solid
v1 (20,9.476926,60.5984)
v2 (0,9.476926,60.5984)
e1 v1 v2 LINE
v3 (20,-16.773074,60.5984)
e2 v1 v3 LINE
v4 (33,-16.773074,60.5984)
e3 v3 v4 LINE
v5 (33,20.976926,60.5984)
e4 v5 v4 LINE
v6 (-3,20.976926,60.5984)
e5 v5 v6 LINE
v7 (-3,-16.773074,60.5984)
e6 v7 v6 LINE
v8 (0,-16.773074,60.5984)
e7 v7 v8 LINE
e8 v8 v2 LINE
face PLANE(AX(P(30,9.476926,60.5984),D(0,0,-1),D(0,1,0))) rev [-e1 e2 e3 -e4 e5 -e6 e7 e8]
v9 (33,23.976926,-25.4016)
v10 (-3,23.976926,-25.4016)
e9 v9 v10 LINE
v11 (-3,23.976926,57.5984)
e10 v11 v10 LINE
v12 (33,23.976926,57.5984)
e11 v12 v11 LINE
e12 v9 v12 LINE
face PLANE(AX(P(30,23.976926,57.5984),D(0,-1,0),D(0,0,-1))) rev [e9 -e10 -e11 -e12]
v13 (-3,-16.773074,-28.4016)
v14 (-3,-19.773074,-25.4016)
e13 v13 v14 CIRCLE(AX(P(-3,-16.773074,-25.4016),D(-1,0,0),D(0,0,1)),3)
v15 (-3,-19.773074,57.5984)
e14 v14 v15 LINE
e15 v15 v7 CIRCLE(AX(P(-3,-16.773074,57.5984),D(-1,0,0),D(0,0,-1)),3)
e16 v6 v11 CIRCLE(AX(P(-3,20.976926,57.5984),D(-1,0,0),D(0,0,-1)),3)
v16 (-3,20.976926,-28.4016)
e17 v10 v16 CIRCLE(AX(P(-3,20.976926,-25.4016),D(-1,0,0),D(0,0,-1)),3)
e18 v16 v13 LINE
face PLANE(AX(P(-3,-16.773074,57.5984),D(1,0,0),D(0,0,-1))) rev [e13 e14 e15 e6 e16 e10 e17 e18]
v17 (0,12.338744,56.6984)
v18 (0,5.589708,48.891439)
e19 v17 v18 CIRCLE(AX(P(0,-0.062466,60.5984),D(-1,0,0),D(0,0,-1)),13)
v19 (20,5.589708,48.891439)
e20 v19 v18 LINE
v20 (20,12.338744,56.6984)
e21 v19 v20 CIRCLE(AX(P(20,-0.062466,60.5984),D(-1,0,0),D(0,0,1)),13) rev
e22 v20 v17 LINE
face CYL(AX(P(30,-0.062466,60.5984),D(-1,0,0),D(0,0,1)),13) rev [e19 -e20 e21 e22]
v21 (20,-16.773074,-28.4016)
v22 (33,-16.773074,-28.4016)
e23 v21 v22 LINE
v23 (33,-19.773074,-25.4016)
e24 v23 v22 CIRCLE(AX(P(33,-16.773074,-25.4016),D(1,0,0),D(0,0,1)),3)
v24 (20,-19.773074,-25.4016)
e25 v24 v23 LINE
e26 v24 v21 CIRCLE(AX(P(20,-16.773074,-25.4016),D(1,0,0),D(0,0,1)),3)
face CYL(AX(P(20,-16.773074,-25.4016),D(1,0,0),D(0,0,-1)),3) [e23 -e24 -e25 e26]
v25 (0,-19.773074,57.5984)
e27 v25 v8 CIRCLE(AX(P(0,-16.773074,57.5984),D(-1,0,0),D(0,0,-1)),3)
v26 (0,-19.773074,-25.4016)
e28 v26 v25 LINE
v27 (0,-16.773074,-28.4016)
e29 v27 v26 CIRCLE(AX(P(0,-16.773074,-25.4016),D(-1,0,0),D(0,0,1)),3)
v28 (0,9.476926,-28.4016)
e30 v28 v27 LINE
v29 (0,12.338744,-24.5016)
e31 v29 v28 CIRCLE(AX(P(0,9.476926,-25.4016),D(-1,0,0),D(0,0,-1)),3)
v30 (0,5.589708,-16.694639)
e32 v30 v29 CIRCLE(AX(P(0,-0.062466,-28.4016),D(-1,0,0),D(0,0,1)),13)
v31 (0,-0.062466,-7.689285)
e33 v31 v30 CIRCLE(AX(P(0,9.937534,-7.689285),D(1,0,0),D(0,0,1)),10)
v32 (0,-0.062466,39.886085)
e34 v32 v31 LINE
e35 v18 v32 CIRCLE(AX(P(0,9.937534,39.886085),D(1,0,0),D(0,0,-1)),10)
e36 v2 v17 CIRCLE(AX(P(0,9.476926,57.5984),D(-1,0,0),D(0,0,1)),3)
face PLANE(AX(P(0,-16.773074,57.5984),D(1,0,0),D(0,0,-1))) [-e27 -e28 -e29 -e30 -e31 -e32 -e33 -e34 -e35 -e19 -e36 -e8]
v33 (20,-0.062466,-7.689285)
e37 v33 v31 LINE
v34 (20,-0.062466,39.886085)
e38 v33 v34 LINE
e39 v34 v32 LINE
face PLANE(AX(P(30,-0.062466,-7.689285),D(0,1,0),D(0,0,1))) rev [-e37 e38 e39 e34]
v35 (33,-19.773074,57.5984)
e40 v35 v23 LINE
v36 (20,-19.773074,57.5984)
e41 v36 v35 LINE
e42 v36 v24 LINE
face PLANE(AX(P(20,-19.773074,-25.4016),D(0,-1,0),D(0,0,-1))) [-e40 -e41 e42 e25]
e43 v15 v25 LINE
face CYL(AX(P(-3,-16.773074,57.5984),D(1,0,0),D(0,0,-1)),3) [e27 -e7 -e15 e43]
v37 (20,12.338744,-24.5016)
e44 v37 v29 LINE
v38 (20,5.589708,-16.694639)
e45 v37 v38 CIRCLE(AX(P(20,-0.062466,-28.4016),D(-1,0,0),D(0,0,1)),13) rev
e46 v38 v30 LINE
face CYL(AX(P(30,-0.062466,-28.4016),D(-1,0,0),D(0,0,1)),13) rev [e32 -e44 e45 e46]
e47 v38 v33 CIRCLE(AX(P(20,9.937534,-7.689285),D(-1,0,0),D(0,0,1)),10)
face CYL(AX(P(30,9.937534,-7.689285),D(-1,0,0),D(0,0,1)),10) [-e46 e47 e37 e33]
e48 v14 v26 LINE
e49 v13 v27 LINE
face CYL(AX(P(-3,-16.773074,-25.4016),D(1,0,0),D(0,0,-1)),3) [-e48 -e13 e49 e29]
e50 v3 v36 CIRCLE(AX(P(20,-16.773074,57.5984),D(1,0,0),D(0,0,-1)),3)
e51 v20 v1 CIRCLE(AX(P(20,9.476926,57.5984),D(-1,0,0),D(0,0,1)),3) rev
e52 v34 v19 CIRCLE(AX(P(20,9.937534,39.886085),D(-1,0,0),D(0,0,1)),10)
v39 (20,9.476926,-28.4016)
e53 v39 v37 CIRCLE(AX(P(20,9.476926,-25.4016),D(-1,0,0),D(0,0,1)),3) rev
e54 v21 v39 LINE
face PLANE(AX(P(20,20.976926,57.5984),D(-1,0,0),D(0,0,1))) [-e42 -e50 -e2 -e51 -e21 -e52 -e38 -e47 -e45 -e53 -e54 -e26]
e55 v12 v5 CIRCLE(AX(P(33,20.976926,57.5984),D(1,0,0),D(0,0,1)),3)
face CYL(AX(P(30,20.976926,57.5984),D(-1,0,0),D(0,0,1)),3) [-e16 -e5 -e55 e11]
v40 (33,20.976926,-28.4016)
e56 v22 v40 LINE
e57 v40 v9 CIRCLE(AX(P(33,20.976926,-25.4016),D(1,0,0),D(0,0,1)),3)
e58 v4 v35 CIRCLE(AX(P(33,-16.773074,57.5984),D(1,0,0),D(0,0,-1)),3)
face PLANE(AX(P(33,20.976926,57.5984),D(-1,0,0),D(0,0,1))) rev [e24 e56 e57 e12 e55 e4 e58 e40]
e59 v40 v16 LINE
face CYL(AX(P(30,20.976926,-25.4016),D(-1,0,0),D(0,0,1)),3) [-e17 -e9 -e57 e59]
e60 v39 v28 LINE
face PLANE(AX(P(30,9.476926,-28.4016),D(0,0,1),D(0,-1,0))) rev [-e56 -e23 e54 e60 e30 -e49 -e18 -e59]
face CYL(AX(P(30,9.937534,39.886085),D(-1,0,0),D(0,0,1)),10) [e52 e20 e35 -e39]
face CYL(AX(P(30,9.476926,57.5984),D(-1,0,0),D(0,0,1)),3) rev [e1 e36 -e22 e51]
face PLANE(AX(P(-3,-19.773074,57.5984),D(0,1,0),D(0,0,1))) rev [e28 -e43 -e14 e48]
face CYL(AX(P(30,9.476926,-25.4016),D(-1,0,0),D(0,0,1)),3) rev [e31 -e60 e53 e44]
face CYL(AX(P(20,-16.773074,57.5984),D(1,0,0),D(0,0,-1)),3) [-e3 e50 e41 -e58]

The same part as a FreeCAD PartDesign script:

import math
import FreeCAD as App
import Part
import Sketcher

doc = App.newDocument("Part")
body = doc.addObject("PartDesign::Body", "Body")

# Sketch on YZ plane
sketch1 = doc.addObject("Sketcher::SketchObject", "Sketch")
body.addObject(sketch1)
sketch1.AttachmentSupport = (doc.YZ_Plane, [""])
sketch1.MapMode = "FlatFace"
sketch1.addGeometry([
    Part.ArcOfCircle(Part.Circle(App.Vector(9.937534, 39.886085, 0), App.Vector(0, 0, 1), 10), math.radians(115.771462), math.radians(180)),  # 0
    Part.LineSegment(App.Vector(-0.062466, 39.886085, 0), App.Vector(-0.062466, -7.689285, 0)),  # 1
    Part.ArcOfCircle(Part.Circle(App.Vector(9.937534, -7.689285, 0), App.Vector(0, 0, 1), 10), math.radians(-180), math.radians(-115.771462)),  # 2
    Part.ArcOfCircle(Part.Circle(App.Vector(-0.062466, -28.4016, 0), App.Vector(0, 0, 1), 13), math.radians(17.457603), math.radians(64.228538)),  # 3
    Part.ArcOfCircle(Part.Circle(App.Vector(9.476926, -25.4016, 0), App.Vector(0, 0, 1), 3), math.radians(-90), math.radians(17.457603)),  # 4
    Part.LineSegment(App.Vector(9.476926, -28.4016, 0), App.Vector(20.976926, -28.4016, 0)),  # 5
    Part.ArcOfCircle(Part.Circle(App.Vector(20.976926, -25.4016, 0), App.Vector(0, 0, 1), 3), math.radians(-90), math.radians(0)),  # 6
    Part.LineSegment(App.Vector(23.976926, -25.4016, 0), App.Vector(23.976926, 57.5984, 0)),  # 7
    Part.ArcOfCircle(Part.Circle(App.Vector(20.976926, 57.5984, 0), App.Vector(0, 0, 1), 3), math.radians(0), math.radians(90)),  # 8
    Part.LineSegment(App.Vector(20.976926, 60.5984, 0), App.Vector(9.476926, 60.5984, 0)),  # 9
    Part.ArcOfCircle(Part.Circle(App.Vector(9.476926, 57.5984, 0), App.Vector(0, 0, 1), 3), math.radians(-17.457603), math.radians(90)),  # 10
    Part.ArcOfCircle(Part.Circle(App.Vector(-0.062466, 60.5984, 0), App.Vector(0, 0, 1), 13), math.radians(-64.228538), math.radians(-17.457603)),  # 11
], False)
sketch1.addConstraint([
    Sketcher.Constraint("Tangent", 0, 2, 1, 1),
    Sketcher.Constraint("Tangent", 1, 2, 2, 1),
    Sketcher.Constraint("Tangent", 2, 2, 3, 2),
    Sketcher.Constraint("Tangent", 3, 1, 4, 2),
    Sketcher.Constraint("Tangent", 4, 1, 5, 1),
    Sketcher.Constraint("Tangent", 5, 2, 6, 1),
    Sketcher.Constraint("Tangent", 6, 2, 7, 1),
    Sketcher.Constraint("Tangent", 7, 2, 8, 1),
    Sketcher.Constraint("Tangent", 8, 2, 9, 1),
    Sketcher.Constraint("Tangent", 9, 2, 10, 2),
    Sketcher.Constraint("Tangent", 10, 1, 11, 2),
    Sketcher.Constraint("Tangent", 11, 1, 0, 1),
    Sketcher.Constraint("Vertical", 1),
    Sketcher.Constraint("Horizontal", 5),
    Sketcher.Constraint("Vertical", 7),
    Sketcher.Constraint("Horizontal", 9),
    Sketcher.Constraint("Equal", 0, 2),
    Sketcher.Constraint("Equal", 4, 6),
    Sketcher.Constraint("Equal", 6, 8),
    Sketcher.Constraint("Equal", 8, 10),
    Sketcher.Constraint("Equal", 3, 11),
    Sketcher.Constraint("Horizontal", 3, 3, 4, 1),
    Sketcher.Constraint("Horizontal", 11, 3, 8, 2),
    Sketcher.Constraint("Vertical", 4, 3, 10, 3),
    Sketcher.Constraint("Vertical", 11, 3, 0, 2),
    Sketcher.Constraint("Radius", 0, 10.0),
    Sketcher.Constraint("Radius", 3, 13.0),
    Sketcher.Constraint("Radius", 4, 3.0),
    Sketcher.Constraint("DistanceY", 7, 1, 7, 2, 83.0),
    Sketcher.Constraint("DistanceX", 5, 1, 5, 2, 11.5),
    Sketcher.Constraint("DistanceY", 3, 3, -1, 1, 28.4016),
    Sketcher.Constraint("DistanceX", -1, 1, 0, 3, 9.937534),
])
pad1 = doc.addObject("PartDesign::Pad", "Pad")
body.addObject(pad1)
pad1.Profile = sketch1
pad1.Length = 30

# Sketch on YZ plane
sketch2 = doc.addObject("Sketcher::SketchObject", "Sketch001")
body.addObject(sketch2)
sketch2.AttachmentSupport = (doc.YZ_Plane, [""])
sketch2.MapMode = "FlatFace"
sketch2.addGeometry([
    Part.ArcOfCircle(Part.Circle(App.Vector(20.976926, 57.5984, 0), App.Vector(0, 0, 1), 3), math.radians(0), math.radians(90)),  # 0
    Part.LineSegment(App.Vector(23.976926, 57.5984, 0), App.Vector(23.976926, -25.4016, 0)),  # 1
    Part.ArcOfCircle(Part.Circle(App.Vector(20.976926, -25.4016, 0), App.Vector(0, 0, 1), 3), math.radians(-90), math.radians(0)),  # 2
    Part.LineSegment(App.Vector(20.976926, -28.4016, 0), App.Vector(-16.773074, -28.4016, 0)),  # 3
    Part.ArcOfCircle(Part.Circle(App.Vector(-16.773074, -25.4016, 0), App.Vector(0, 0, 1), 3), math.radians(180), math.radians(270)),  # 4
    Part.LineSegment(App.Vector(-19.773074, -25.4016, 0), App.Vector(-19.773074, 57.5984, 0)),  # 5
    Part.ArcOfCircle(Part.Circle(App.Vector(-16.773074, 57.5984, 0), App.Vector(0, 0, 1), 3), math.radians(90), math.radians(180)),  # 6
    Part.LineSegment(App.Vector(-16.773074, 60.5984, 0), App.Vector(20.976926, 60.5984, 0)),  # 7
], False)
sketch2.addConstraint([
    Sketcher.Constraint("Tangent", 0, 1, 1, 1),
    Sketcher.Constraint("Tangent", 1, 2, 2, 2),
    Sketcher.Constraint("Tangent", 2, 1, 3, 1),
    Sketcher.Constraint("Tangent", 3, 2, 4, 2),
    Sketcher.Constraint("Tangent", 4, 1, 5, 1),
    Sketcher.Constraint("Tangent", 5, 2, 6, 2),
    Sketcher.Constraint("Tangent", 6, 1, 7, 1),
    Sketcher.Constraint("Tangent", 7, 2, 0, 2),
    Sketcher.Constraint("Vertical", 1),
    Sketcher.Constraint("Horizontal", 3),
    Sketcher.Constraint("Vertical", 5),
    Sketcher.Constraint("Horizontal", 7),
    Sketcher.Constraint("Equal", 0, 2),
    Sketcher.Constraint("Equal", 2, 4),
    Sketcher.Constraint("Equal", 4, 6),
    Sketcher.Constraint("Radius", 0, 3.0),
    Sketcher.Constraint("DistanceY", 1, 2, 1, 1, 83.0),
    Sketcher.Constraint("DistanceX", 3, 2, 3, 1, 37.75),
    Sketcher.Constraint("DistanceY", -1, 1, 0, 3, 57.5984),
    Sketcher.Constraint("DistanceX", -1, 1, 0, 3, 20.976926),
])
pad2 = doc.addObject("PartDesign::Pad", "Pad001")
body.addObject(pad2)
pad2.Profile = sketch2
pad2.Length = 3
pad2.Reversed = True

# Sketch on YZ plane
sketch3 = doc.addObject("Sketcher::SketchObject", "Sketch002")
body.addObject(sketch3)
sketch3.AttachmentSupport = (doc.YZ_Plane, [""])
sketch3.MapMode = "FlatFace"
sketch3.AttachmentOffset = App.Placement(App.Vector(0, 0, 30), App.Rotation())
sketch3.addGeometry([
    Part.ArcOfCircle(Part.Circle(App.Vector(20.976926, -25.4016, 0), App.Vector(0, 0, 1), 3), math.radians(-90), math.radians(0)),  # 0
    Part.LineSegment(App.Vector(23.976926, -25.4016, 0), App.Vector(23.976926, 57.5984, 0)),  # 1
    Part.ArcOfCircle(Part.Circle(App.Vector(20.976926, 57.5984, 0), App.Vector(0, 0, 1), 3), math.radians(0), math.radians(90)),  # 2
    Part.LineSegment(App.Vector(20.976926, 60.5984, 0), App.Vector(-16.773074, 60.5984, 0)),  # 3
    Part.ArcOfCircle(Part.Circle(App.Vector(-16.773074, 57.5984, 0), App.Vector(0, 0, 1), 3), math.radians(90), math.radians(180)),  # 4
    Part.LineSegment(App.Vector(-19.773074, 57.5984, 0), App.Vector(-19.773074, -25.4016, 0)),  # 5
    Part.ArcOfCircle(Part.Circle(App.Vector(-16.773074, -25.4016, 0), App.Vector(0, 0, 1), 3), math.radians(180), math.radians(270)),  # 6
    Part.LineSegment(App.Vector(-16.773074, -28.4016, 0), App.Vector(20.976926, -28.4016, 0)),  # 7
], False)
sketch3.addConstraint([
    Sketcher.Constraint("Tangent", 0, 2, 1, 1),
    Sketcher.Constraint("Tangent", 1, 2, 2, 1),
    Sketcher.Constraint("Tangent", 2, 2, 3, 1),
    Sketcher.Constraint("Tangent", 3, 2, 4, 1),
    Sketcher.Constraint("Tangent", 4, 2, 5, 1),
    Sketcher.Constraint("Tangent", 5, 2, 6, 1),
    Sketcher.Constraint("Tangent", 6, 2, 7, 1),
    Sketcher.Constraint("Tangent", 7, 2, 0, 1),
    Sketcher.Constraint("Vertical", 1),
    Sketcher.Constraint("Horizontal", 3),
    Sketcher.Constraint("Vertical", 5),
    Sketcher.Constraint("Horizontal", 7),
    Sketcher.Constraint("Equal", 0, 2),
    Sketcher.Constraint("Equal", 2, 4),
    Sketcher.Constraint("Equal", 4, 6),
    Sketcher.Constraint("Radius", 0, 3.0),
    Sketcher.Constraint("DistanceY", 1, 1, 1, 2, 83.0),
    Sketcher.Constraint("DistanceX", 3, 2, 3, 1, 37.75),
    Sketcher.Constraint("DistanceY", 0, 3, -1, 1, 25.4016),
    Sketcher.Constraint("DistanceX", -1, 1, 0, 3, 20.976926),
])
pad3 = doc.addObject("PartDesign::Pad", "Pad002")
body.addObject(pad3)
pad3.Profile = sketch3
pad3.Type = "TwoLengths"
pad3.Length = 3
pad3.Length2 = 10

doc.recompute()
